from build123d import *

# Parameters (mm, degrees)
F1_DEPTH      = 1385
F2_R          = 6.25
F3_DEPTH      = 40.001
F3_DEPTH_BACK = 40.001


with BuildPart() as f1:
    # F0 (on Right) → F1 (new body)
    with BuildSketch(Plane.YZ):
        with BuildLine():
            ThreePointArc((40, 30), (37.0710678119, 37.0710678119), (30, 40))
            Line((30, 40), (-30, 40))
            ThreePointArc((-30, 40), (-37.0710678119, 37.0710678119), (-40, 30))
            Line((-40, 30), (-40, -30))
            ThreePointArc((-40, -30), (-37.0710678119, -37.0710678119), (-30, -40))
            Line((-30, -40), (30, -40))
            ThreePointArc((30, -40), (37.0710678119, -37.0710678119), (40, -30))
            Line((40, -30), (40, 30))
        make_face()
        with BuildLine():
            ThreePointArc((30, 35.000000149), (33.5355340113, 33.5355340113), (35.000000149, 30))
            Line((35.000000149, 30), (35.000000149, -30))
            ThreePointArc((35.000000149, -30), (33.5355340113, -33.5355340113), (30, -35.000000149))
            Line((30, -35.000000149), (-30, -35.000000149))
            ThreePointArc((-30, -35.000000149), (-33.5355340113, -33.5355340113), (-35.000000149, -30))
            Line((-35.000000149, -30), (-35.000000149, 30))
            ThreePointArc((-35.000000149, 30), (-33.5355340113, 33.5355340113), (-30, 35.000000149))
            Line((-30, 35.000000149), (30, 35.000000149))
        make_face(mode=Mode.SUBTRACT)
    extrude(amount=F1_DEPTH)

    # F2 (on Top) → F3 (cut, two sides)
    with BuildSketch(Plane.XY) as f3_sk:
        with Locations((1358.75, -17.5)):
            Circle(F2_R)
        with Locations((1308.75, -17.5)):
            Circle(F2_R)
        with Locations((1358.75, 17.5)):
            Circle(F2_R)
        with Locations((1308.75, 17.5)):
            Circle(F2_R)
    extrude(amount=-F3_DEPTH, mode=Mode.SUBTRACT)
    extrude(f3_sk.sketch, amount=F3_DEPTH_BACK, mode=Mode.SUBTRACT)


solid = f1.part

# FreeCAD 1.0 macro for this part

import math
import FreeCAD as App
import Part
import Sketcher

doc = App.newDocument("Part")
params = doc.addObject("Spreadsheet::Sheet", "Params")
for row, (alias, value) in enumerate([
    ("sketch1_radius", "10 mm"),
    ("sketch1_radius2", "5 mm"),
    ("sketch1_width", "60 mm"),
    ("pad1_length", "1385 mm"),
    ("sketch2_diameter", "12.5 mm"),
], start=1):
    params.set(f"A{row}", alias)
    params.set(f"B{row}", "=" + value)
    params.setAlias(f"B{row}", alias)

body = doc.addObject("PartDesign::Body", "Body")

sketch1 = doc.addObject("Sketcher::SketchObject", "Sketch")
body.addObject(sketch1)
sketch1.AttachmentSupport = (doc.YZ_Plane, [""])
sketch1.MapMode = "FlatFace"
sketch1.addGeometry(Part.ArcOfCircle(Part.Circle(App.Vector(30, 30, 0), App.Vector(0, 0, 1), 10), math.radians(0), math.radians(90)), False)
sketch1.addGeometry(Part.LineSegment(App.Vector(30, 40, 0), App.Vector(-30, 40, 0)), False)
sketch1.addGeometry(Part.ArcOfCircle(Part.Circle(App.Vector(-30, 30, 0), App.Vector(0, 0, 1), 10), math.radians(90), math.radians(180)), False)
sketch1.addGeometry(Part.LineSegment(App.Vector(-40, 30, 0), App.Vector(-40, -30, 0)), False)
sketch1.addGeometry(Part.ArcOfCircle(Part.Circle(App.Vector(-30, -30, 0), App.Vector(0, 0, 1), 10), math.radians(180), math.radians(270)), False)
sketch1.addGeometry(Part.LineSegment(App.Vector(-30, -40, 0), App.Vector(30, -40, 0)), False)
sketch1.addGeometry(Part.ArcOfCircle(Part.Circle(App.Vector(30, -30, 0), App.Vector(0, 0, 1), 10), math.radians(-90), math.radians(0)), False)
sketch1.addGeometry(Part.LineSegment(App.Vector(40, -30, 0), App.Vector(40, 30, 0)), False)
sketch1.addGeometry(Part.LineSegment(App.Vector(-30, 35, 0), App.Vector(30, 35, 0)), False)
sketch1.addGeometry(Part.ArcOfCircle(Part.Circle(App.Vector(30, 30, 0), App.Vector(0, 0, 1), 5), math.radians(0), math.radians(90)), False)
sketch1.addGeometry(Part.LineSegment(App.Vector(35, 30, 0), App.Vector(35, -30, 0)), False)
sketch1.addGeometry(Part.ArcOfCircle(Part.Circle(App.Vector(30, -30, 0), App.Vector(0, 0, 1), 5), math.radians(-90), math.radians(0)), False)
sketch1.addGeometry(Part.LineSegment(App.Vector(30, -35, 0), App.Vector(-30, -35, 0)), False)
sketch1.addGeometry(Part.ArcOfCircle(Part.Circle(App.Vector(-30, -30, 0), App.Vector(0, 0, 1), 5), math.radians(180), math.radians(270)), False)
sketch1.addGeometry(Part.LineSegment(App.Vector(-35, -30, 0), App.Vector(-35, 30, 0)), False)
sketch1.addGeometry(Part.ArcOfCircle(Part.Circle(App.Vector(-30, 30, 0), App.Vector(0, 0, 1), 5), math.radians(90), math.radians(180)), False)
sketch1.addConstraint(Sketcher.Constraint("Tangent", 0, 2, 1, 1))
sketch1.addConstraint(Sketcher.Constraint("Tangent", 1, 2, 2, 1))
sketch1.addConstraint(Sketcher.Constraint("Tangent", 2, 2, 3, 1))
sketch1.addConstraint(Sketcher.Constraint("Tangent", 3, 2, 4, 1))
sketch1.addConstraint(Sketcher.Constraint("Tangent", 4, 2, 5, 1))
sketch1.addConstraint(Sketcher.Constraint("Tangent", 5, 2, 6, 1))
sketch1.addConstraint(Sketcher.Constraint("Tangent", 6, 2, 7, 1))
sketch1.addConstraint(Sketcher.Constraint("Tangent", 7, 2, 0, 1))
sketch1.addConstraint(Sketcher.Constraint("Tangent", 8, 2, 9, 2))
sketch1.addConstraint(Sketcher.Constraint("Tangent", 9, 1, 10, 1))
sketch1.addConstraint(Sketcher.Constraint("Tangent", 10, 2, 11, 2))
sketch1.addConstraint(Sketcher.Constraint("Tangent", 11, 1, 12, 1))
sketch1.addConstraint(Sketcher.Constraint("Tangent", 12, 2, 13, 2))
sketch1.addConstraint(Sketcher.Constraint("Tangent", 13, 1, 14, 1))
sketch1.addConstraint(Sketcher.Constraint("Tangent", 14, 2, 15, 2))
sketch1.addConstraint(Sketcher.Constraint("Tangent", 15, 1, 8, 1))
sketch1.addConstraint(Sketcher.Constraint("Horizontal", 1))
sketch1.addConstraint(Sketcher.Constraint("Vertical", 3))
sketch1.addConstraint(Sketcher.Constraint("Horizontal", 5))
sketch1.addConstraint(Sketcher.Constraint("Vertical", 7))
sketch1.addConstraint(Sketcher.Constraint("Horizontal", 8))
sketch1.addConstraint(Sketcher.Constraint("Vertical", 10))
sketch1.addConstraint(Sketcher.Constraint("Horizontal", 12))
sketch1.addConstraint(Sketcher.Constraint("Vertical", 14))
sketch1.addConstraint(Sketcher.Constraint("Coincident", 9, 3, 0, 3))
sketch1.addConstraint(Sketcher.Constraint("Coincident", 11, 3, 6, 3))
sketch1.addConstraint(Sketcher.Constraint("Coincident", 13, 3, 4, 3))
sketch1.addConstraint(Sketcher.Constraint("Equal", 0, 2))
sketch1.addConstraint(Sketcher.Constraint("Equal", 2, 4))
sketch1.addConstraint(Sketcher.Constraint("Equal", 4, 6))
sketch1.addConstraint(Sketcher.Constraint("Equal", 13, 15))
sketch1.addConstraint(Sketcher.Constraint("Symmetric", 0, 3, 4, 3, -1, 1))
sketch1.addConstraint(Sketcher.Constraint("Equal", 12, 3))
sketch1.addConstraint(Sketcher.Constraint("Radius", 0, 10.0))
sketch1.addConstraint(Sketcher.Constraint("Radius", 9, 5.0))
sketch1.addConstraint(Sketcher.Constraint("DistanceX", 1, 2, 1, 1, 60.0))
sketch1.setExpression("Constraints[33]", "Params.sketch1_radius")
sketch1.setExpression("Constraints[34]", "Params.sketch1_radius2")
sketch1.setExpression("Constraints[35]", "Params.sketch1_width")
pad1 = doc.addObject("PartDesign::Pad", "Pad")
body.addObject(pad1)
pad1.Profile = sketch1
pad1.setExpression("Length", "Params.pad1_length")

sketch2 = doc.addObject("Sketcher::SketchObject", "Sketch001")
body.addObject(sketch2)
sketch2.AttachmentSupport = (doc.XY_Plane, [""])
sketch2.MapMode = "FlatFace"
sketch2.addGeometry(Part.Circle(App.Vector(1359, -18, 0), App.Vector(0, 0, 1), 6), False)
sketch2.addGeometry(Part.Circle(App.Vector(1309, -18, 0), App.Vector(0, 0, 1), 6), False)
sketch2.addGeometry(Part.Circle(App.Vector(1359, 18, 0), App.Vector(0, 0, 1), 6), False)
sketch2.addGeometry(Part.Circle(App.Vector(1309, 18, 0), App.Vector(0, 0, 1), 6), False)
sketch2.addConstraint(Sketcher.Constraint("Equal", 0, 1))
sketch2.addConstraint(Sketcher.Constraint("Equal", 1, 2))
sketch2.addConstraint(Sketcher.Constraint("Equal", 2, 3))
sketch2.addConstraint(Sketcher.Constraint("Symmetric", 0, 3, 2, 3, -1))
sketch2.addConstraint(Sketcher.Constraint("Symmetric", 1, 3, 3, 3, -1))
sketch2.addConstraint(Sketcher.Constraint("Horizontal", 0, 3, 1, 3))
sketch2.addConstraint(Sketcher.Constraint("Diameter", 0, 12.5))
sketch2.addConstraint(Sketcher.Constraint("DistanceX", 1, 3, 0, 3, 50.0))
sketch2.addConstraint(Sketcher.Constraint("DistanceY", 0, 3, 2, 3, 35.0))
sketch2.addConstraint(Sketcher.Constraint("DistanceX", -1, 1, 0, 3, 1358.75))
sketch2.setExpression("Constraints[6]", "Params.sketch2_diameter")
pocket1 = doc.addObject("PartDesign::Pocket", "Pocket")
body.addObject(pocket1)
pocket1.Profile = sketch2
pocket1.Type = "ThroughAll"
pocket1.Midplane = True

doc.recompute()
